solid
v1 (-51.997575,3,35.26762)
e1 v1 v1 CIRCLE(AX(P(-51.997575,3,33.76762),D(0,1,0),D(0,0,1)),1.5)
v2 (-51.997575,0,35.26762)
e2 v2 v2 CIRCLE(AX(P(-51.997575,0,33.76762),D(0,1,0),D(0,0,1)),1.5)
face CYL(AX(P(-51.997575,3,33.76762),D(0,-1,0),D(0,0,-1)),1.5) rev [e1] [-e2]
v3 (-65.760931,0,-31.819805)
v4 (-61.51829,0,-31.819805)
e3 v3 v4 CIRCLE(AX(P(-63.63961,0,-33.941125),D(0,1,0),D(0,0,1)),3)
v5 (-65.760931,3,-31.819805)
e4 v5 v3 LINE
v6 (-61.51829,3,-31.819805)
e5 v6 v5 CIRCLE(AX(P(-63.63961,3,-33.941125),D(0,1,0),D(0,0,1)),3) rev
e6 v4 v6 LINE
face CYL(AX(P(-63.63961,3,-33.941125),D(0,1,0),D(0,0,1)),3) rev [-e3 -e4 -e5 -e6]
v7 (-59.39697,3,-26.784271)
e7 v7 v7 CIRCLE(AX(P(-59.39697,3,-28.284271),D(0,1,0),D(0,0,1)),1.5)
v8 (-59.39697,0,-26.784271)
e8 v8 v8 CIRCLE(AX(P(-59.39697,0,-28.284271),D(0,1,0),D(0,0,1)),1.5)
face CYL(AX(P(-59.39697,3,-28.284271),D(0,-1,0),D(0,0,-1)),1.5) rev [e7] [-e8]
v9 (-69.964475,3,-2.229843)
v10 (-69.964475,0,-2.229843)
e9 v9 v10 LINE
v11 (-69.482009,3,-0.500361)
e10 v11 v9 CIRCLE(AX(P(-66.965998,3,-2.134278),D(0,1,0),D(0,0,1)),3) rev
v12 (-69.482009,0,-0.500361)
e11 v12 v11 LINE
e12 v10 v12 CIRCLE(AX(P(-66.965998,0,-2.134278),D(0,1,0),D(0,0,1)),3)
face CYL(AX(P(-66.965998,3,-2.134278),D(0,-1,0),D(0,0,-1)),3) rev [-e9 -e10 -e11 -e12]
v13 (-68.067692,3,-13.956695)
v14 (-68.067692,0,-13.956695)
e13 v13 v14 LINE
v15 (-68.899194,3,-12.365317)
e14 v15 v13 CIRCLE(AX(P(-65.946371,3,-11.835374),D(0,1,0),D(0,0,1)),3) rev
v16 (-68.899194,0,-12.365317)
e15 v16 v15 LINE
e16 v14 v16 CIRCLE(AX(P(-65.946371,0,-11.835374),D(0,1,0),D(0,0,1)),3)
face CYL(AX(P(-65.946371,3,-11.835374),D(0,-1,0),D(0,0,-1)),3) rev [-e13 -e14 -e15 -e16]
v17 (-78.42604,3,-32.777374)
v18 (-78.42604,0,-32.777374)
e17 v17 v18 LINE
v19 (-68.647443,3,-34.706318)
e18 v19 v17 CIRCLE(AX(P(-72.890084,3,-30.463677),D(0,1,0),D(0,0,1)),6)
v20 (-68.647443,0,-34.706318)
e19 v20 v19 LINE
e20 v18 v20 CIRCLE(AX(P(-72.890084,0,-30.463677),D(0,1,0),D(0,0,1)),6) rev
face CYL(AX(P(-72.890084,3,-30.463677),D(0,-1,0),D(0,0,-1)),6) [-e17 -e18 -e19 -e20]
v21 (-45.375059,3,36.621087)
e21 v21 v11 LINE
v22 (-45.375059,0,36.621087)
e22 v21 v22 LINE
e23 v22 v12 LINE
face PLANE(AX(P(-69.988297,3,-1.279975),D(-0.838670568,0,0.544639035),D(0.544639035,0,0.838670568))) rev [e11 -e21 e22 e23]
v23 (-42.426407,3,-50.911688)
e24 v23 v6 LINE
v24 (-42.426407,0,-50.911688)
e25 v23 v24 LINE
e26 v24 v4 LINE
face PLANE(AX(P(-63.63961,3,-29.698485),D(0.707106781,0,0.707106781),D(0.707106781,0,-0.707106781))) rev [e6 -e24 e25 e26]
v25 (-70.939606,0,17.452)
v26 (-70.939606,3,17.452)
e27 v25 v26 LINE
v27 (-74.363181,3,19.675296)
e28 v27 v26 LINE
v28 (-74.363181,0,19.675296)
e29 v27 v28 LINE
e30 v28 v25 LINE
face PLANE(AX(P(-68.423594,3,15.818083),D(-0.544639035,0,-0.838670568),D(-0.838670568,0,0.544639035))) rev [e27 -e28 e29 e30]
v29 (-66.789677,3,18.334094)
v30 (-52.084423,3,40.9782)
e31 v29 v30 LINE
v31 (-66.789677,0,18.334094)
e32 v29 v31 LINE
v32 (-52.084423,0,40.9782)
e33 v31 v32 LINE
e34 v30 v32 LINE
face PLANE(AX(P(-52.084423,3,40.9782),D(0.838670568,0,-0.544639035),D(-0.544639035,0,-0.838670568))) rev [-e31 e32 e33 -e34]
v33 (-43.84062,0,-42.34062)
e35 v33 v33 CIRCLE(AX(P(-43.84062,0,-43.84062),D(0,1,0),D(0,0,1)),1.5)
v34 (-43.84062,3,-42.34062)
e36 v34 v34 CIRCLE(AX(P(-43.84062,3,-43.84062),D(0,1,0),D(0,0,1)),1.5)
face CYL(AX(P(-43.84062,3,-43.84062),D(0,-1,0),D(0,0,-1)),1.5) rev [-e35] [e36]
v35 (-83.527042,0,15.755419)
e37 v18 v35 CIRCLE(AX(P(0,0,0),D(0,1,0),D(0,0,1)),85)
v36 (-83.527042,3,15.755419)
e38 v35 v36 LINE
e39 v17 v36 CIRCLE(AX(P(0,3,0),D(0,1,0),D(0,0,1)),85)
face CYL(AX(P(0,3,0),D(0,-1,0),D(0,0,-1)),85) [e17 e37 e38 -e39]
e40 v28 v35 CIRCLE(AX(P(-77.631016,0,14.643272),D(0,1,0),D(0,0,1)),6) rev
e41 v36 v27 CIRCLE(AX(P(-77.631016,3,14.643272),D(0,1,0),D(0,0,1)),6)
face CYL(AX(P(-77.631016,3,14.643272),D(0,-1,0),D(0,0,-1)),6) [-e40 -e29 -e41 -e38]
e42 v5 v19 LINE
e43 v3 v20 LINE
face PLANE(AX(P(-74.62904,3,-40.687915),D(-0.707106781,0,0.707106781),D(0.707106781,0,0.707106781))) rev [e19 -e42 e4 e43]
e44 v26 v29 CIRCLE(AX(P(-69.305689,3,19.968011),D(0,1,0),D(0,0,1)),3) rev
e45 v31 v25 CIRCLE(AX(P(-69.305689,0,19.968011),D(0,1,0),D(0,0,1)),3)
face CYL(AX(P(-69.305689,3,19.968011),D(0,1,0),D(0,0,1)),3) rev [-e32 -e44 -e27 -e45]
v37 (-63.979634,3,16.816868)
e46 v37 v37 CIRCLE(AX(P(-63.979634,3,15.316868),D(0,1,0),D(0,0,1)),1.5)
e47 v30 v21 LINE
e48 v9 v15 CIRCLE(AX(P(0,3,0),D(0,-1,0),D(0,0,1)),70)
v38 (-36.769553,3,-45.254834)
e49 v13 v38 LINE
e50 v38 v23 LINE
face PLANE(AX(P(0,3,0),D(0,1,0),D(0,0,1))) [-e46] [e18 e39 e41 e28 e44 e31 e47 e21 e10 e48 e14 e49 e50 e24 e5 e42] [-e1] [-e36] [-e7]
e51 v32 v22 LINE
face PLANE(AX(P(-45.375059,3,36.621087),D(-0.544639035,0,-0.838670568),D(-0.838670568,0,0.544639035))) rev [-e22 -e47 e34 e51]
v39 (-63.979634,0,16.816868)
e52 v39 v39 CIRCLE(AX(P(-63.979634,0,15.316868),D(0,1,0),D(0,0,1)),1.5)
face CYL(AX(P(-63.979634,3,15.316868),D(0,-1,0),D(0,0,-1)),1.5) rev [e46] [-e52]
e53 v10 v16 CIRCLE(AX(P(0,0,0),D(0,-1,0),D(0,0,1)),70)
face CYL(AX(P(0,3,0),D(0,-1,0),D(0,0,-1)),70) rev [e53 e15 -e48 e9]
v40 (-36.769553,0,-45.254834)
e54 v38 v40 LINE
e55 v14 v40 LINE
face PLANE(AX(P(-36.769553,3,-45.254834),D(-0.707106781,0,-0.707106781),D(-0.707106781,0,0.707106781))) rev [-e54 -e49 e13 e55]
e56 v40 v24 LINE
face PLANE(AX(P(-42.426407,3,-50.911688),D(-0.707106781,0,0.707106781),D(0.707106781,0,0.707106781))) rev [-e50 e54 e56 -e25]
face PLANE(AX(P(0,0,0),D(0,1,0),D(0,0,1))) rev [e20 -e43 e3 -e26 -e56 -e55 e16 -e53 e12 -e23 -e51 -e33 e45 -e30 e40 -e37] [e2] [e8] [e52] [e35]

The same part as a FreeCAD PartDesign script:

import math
import FreeCAD as App
import Part
import Sketcher
from FreeCAD import Vector
Q = App.Units.Quantity


def edges_at(feature, points):
    """Names of the edges that pass closest to the given points."""
    edges = feature.Shape.Edges
    near = lambda p: min(range(len(edges)), key=lambda i: edges[i].distToShape(Part.Vertex(*p))[0])
    return sorted({f"Edge{near(p) + 1}" for p in points})

doc = App.newDocument("Part")
params = doc.addObject("Spreadsheet::Sheet", "Params")
for row, (alias, value) in enumerate([
    ("sketch1_diameter", "3 mm"),
    ("sketch1_radius", "85 mm"),
    ("sketch1_radius2", "70 mm"),
    ("sketch1_length", "30 mm"),
    ("sketch1_length2", "8 mm"),
    ("pad1_length", "3 mm"),
    ("fillet_radius", "6 mm"),
    ("fillet2_radius", "3 mm"),
], start=1):
    params.set(f"A{row}", alias)
    params.set(f"B{row}", "=" + value)
    params.setAlias(f"B{row}", alias)

body = doc.addObject("PartDesign::Body", "Body")

# Sketch on XZ plane
sketch1 = body.newObject("Sketcher::SketchObject", "Sketch")
sketch1.AttachmentSupport = (doc.getObject("XZ_Plane"), [""])
sketch1.MapMode = "FlatFace"
sketch1.addGeometry(Part.LineSegment(Vector(-63.6, -29.7, 0), Vector(-74.6, -40.7, 0)), False)
sketch1.addGeometry(Part.ArcOfCircle(Part.Circle(Vector(0, 0, 0), Vector(0, 0, 1), 85), math.radians(163), math.radians(209)), False)
sketch1.addGeometry(Part.LineSegment(Vector(-81.5, 24.3, 0), Vector(-68.4, 15.8, 0)), False)
sketch1.addGeometry(Part.LineSegment(Vector(-68.4, 15.8, 0), Vector(-52.1, 41, 0)), False)
sketch1.addGeometry(Part.LineSegment(Vector(-52.1, 41, 0), Vector(-45.4, 36.6, 0)), False)
sketch1.addGeometry(Part.LineSegment(Vector(-45.4, 36.6, 0), Vector(-70, -1.3, 0)), False)
sketch1.addGeometry(Part.ArcOfCircle(Part.Circle(Vector(0, 0, 0), Vector(0, 0, 1), 70), math.radians(-178.95), math.radians(-169.05)), False)
sketch1.addGeometry(Part.LineSegment(Vector(-68.7, -13.3, 0), Vector(-36.8, -45.3, 0)), False)
sketch1.addGeometry(Part.LineSegment(Vector(-36.8, -45.3, 0), Vector(-42.4, -50.9, 0)), False)
sketch1.addGeometry(Part.LineSegment(Vector(-42.4, -50.9, 0), Vector(-63.6, -29.7, 0)), False)
sketch1.addGeometry(Part.Circle(Vector(-52, 33.8, 0), Vector(0, 0, 1), 1.5), False)
sketch1.addGeometry(Part.Circle(Vector(-64, 15.3, 0), Vector(0, 0, 1), 1.5), False)
sketch1.addGeometry(Part.Circle(Vector(-43.8, -43.8, 0), Vector(0, 0, 1), 1.5), False)
sketch1.addGeometry(Part.Circle(Vector(-59.4, -28.3, 0), Vector(0, 0, 1), 1.5), False)
sketch1.addConstraint(Sketcher.Constraint("Coincident", 0, 2, 1, 2))
sketch1.addConstraint(Sketcher.Constraint("Coincident", 1, 1, 2, 1))
sketch1.addConstraint(Sketcher.Constraint("Coincident", 2, 2, 3, 1))
sketch1.addConstraint(Sketcher.Constraint("Coincident", 3, 2, 4, 1))
sketch1.addConstraint(Sketcher.Constraint("Coincident", 4, 2, 5, 1))
sketch1.addConstraint(Sketcher.Constraint("Coincident", 5, 2, 6, 1))
sketch1.addConstraint(Sketcher.Constraint("Coincident", 6, 2, 7, 1))
sketch1.addConstraint(Sketcher.Constraint("Coincident", 7, 2, 8, 1))
sketch1.addConstraint(Sketcher.Constraint("Coincident", 8, 2, 9, 1))
sketch1.addConstraint(Sketcher.Constraint("Coincident", 9, 2, 0, 1))
sketch1.addConstraint(Sketcher.Constraint("Coincident", 1, 3, -1, 1))
sketch1.addConstraint(Sketcher.Constraint("Coincident", 6, 3, -1, 1))
sketch1.addConstraint(Sketcher.Constraint("Equal", 10, 11))
sketch1.addConstraint(Sketcher.Constraint("Equal", 11, 12))
sketch1.addConstraint(Sketcher.Constraint("Equal", 12, 13))
sketch1.addConstraint(Sketcher.Constraint("Perpendicular", 2, 3))
sketch1.addConstraint(Sketcher.Constraint("Perpendicular", 3, 4))
sketch1.addConstraint(Sketcher.Constraint("Perpendicular", 4, 5))
sketch1.addConstraint(Sketcher.Constraint("Perpendicular", 0, 7))
sketch1.addConstraint(Sketcher.Constraint("Perpendicular", 7, 8))
sketch1.addConstraint(Sketcher.Constraint("Perpendicular", 8, 9))
sketch1.addConstraint(Sketcher.Constraint("Equal", 0, 2))
sketch1.addConstraint(Sketcher.Constraint("Equal", 5, 7))
sketch1.addConstraint(Sketcher.Constraint("Equal", 4, 8))
sketch1.addConstraint(Sketcher.Constraint("Equal", 3, 9))
sketch1.addConstraint(Sketcher.Constraint("Diameter", 10, Q("3 mm")))
sketch1.addConstraint(Sketcher.Constraint("Radius", 1, Q("85 mm")))
sketch1.addConstraint(Sketcher.Constraint("Radius", 6, Q("70 mm")))
sketch1.addConstraint(Sketcher.Constraint("Angle", 0, Q("-135 deg")))
sketch1.addConstraint(Sketcher.Constraint("Angle", 2, Q("-33 deg")))
sketch1.addConstraint(Sketcher.Constraint("Distance", 3, Q("30 mm")))
sketch1.addConstraint(Sketcher.Constraint("Distance", 4, Q("8 mm")))
sketch1.addConstraint(Sketcher.Constraint("Distance", 0, Q("15.541401 mm")))
sketch1.addConstraint(Sketcher.Constraint("DistanceY", -1, 1, 3, 2, Q("40.9782 mm")))
sketch1.addConstraint(Sketcher.Constraint("DistanceY", -1, 1, 10, 3, Q("33.76762 mm")))
sketch1.addConstraint(Sketcher.Constraint("DistanceX", 12, 3, -1, 1, Q("43.84062 mm")))
sketch1.addConstraint(Sketcher.Constraint("DistanceY", 12, 3, -1, 1, Q("43.84062 mm")))
sketch1.addConstraint(Sketcher.Constraint("DistanceX", 13, 3, -1, 1, Q("59.39697 mm")))
sketch1.addConstraint(Sketcher.Constraint("DistanceY", 13, 3, -1, 1, Q("28.284271 mm")))
sketch1.addConstraint(Sketcher.Constraint("DistanceX", 11, 3, 10, 3, Q("11.982059 mm")))
sketch1.addConstraint(Sketcher.Constraint("DistanceY", 12, 3, 11, 3, Q("59.157488 mm")))
sketch1.addConstraint(Sketcher.Constraint("DistanceX", 2, 2, 11, 3, Q("4.44396 mm")))
sketch1.setExpression("Constraints[25]", "Params.sketch1_diameter")
sketch1.setExpression("Constraints[26]", "Params.sketch1_radius")
sketch1.setExpression("Constraints[27]", "Params.sketch1_radius2")
sketch1.setExpression("Constraints[30]", "Params.sketch1_length")
sketch1.setExpression("Constraints[31]", "Params.sketch1_length2")
pad1 = body.newObject("PartDesign::Pad", "Pad")
pad1.Profile = sketch1
pad1.setExpression("Length", "Params.pad1_length")
pad1.Reversed = True
doc.recompute()

fillet = body.newObject("PartDesign::Fillet", "Fillet")
fillet.Base = (pad1, edges_at(pad1, [(-74.629, 1.5, -40.688), (-81.458, 1.5, 24.283)]))
fillet.setExpression("Radius", "Params.fillet_radius")
doc.recompute()

fillet2 = body.newObject("PartDesign::Fillet", "Fillet001")
fillet2.Base = (fillet, edges_at(fillet, [
    (-63.64, 1.5, -29.698),
    (-68.725, 1.5, -13.299),
    (-69.988, 1.5, -1.28),
    (-68.424, 1.5, 15.818),
]))
fillet2.setExpression("Radius", "Params.fillet2_radius")

doc.recompute()
